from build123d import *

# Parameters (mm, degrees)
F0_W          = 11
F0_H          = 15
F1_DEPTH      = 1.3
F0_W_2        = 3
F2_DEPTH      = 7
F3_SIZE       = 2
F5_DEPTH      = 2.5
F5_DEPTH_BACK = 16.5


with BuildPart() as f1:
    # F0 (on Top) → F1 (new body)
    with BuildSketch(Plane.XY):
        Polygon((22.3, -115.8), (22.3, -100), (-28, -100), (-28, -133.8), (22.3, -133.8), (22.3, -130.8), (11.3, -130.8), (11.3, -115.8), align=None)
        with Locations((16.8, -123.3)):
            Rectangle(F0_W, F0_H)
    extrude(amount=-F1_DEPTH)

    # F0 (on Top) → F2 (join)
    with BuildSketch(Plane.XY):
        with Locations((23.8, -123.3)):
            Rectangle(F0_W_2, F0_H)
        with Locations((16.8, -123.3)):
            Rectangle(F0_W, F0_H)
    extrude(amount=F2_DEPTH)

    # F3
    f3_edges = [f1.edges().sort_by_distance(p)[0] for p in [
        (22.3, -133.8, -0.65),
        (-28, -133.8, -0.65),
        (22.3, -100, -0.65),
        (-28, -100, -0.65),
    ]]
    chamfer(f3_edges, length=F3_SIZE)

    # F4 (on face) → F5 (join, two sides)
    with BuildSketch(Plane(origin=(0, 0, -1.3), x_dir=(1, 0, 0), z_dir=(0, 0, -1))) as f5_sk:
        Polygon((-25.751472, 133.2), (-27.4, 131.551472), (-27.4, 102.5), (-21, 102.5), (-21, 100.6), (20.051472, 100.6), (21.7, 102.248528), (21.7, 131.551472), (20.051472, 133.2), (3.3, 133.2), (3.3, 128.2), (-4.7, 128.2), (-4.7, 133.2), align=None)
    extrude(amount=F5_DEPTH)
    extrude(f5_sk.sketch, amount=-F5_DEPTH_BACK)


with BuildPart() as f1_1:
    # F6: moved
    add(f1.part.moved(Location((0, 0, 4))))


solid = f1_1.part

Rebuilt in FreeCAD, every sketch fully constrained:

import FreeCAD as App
import Part
import Sketcher
Q = App.Units.Quantity


def edges_at(feature, points):
    """Names of the edges that pass closest to the given points."""
    edges = feature.Shape.Edges
    near = lambda p: min(range(len(edges)), key=lambda i: edges[i].distToShape(Part.Vertex(*p))[0])
    return sorted({f"Edge{near(p) + 1}" for p in points})

doc = App.newDocument("Part")
body = doc.addObject("PartDesign::Body", "Body")

sketch1 = body.newObject("Sketcher::SketchObject", "Sketch")
sketch1.AttachmentSupport = (doc.getObject("XY_Plane"), [""])
sketch1.MapMode = "FlatFace"
sketch1.addGeometry([
    Part.LineSegment(App.Vector(22.3, -100, 0), App.Vector(-28, -100, 0)),
    Part.LineSegment(App.Vector(-28, -100, 0), App.Vector(-28, -133.8, 0)),
    Part.LineSegment(App.Vector(-28, -133.8, 0), App.Vector(22.3, -133.8, 0)),
    Part.LineSegment(App.Vector(22.3, -133.8, 0), App.Vector(22.3, -100, 0)),
], False)
sketch1.addConstraint([
    Sketcher.Constraint("Coincident", 0, 2, 1, 1),
    Sketcher.Constraint("Coincident", 1, 2, 2, 1),
    Sketcher.Constraint("Coincident", 2, 2, 3, 1),
    Sketcher.Constraint("Coincident", 3, 2, 0, 1),
    Sketcher.Constraint("Horizontal", 0),
    Sketcher.Constraint("Vertical", 1),
    Sketcher.Constraint("Horizontal", 2),
    Sketcher.Constraint("Vertical", 3),
    Sketcher.Constraint("DistanceX", 0, 2, 0, 1, Q("50.3 mm")),
    Sketcher.Constraint("DistanceY", 1, 2, 1, 1, Q("33.8 mm")),
    Sketcher.Constraint("DistanceX", 0, 2, -1, 1, Q("28 mm")),
    Sketcher.Constraint("DistanceY", 0, 2, -1, 1, Q("100 mm")),
])
pad1 = body.newObject("PartDesign::Pad", "Pad")
pad1.Profile = sketch1
pad1.Length = 1.3
pad1.Reversed = True

sketch2 = body.newObject("Sketcher::SketchObject", "Sketch001")
sketch2.AttachmentSupport = (doc.getObject("XY_Plane"), [""])
sketch2.MapMode = "FlatFace"
sketch2.addGeometry([
    Part.LineSegment(App.Vector(25.3, -130.8, 0), App.Vector(25.3, -115.8, 0)),
    Part.LineSegment(App.Vector(25.3, -115.8, 0), App.Vector(11.3, -115.8, 0)),
    Part.LineSegment(App.Vector(11.3, -115.8, 0), App.Vector(11.3, -130.8, 0)),
    Part.LineSegment(App.Vector(11.3, -130.8, 0), App.Vector(25.3, -130.8, 0)),
], False)
sketch2.addConstraint([
    Sketcher.Constraint("Coincident", 0, 2, 1, 1),
    Sketcher.Constraint("Coincident", 1, 2, 2, 1),
    Sketcher.Constraint("Coincident", 2, 2, 3, 1),
    Sketcher.Constraint("Coincident", 3, 2, 0, 1),
    Sketcher.Constraint("Vertical", 0),
    Sketcher.Constraint("Horizontal", 1),
    Sketcher.Constraint("Vertical", 2),
    Sketcher.Constraint("Horizontal", 3),
    Sketcher.Constraint("DistanceX", 1, 2, 1, 1, Q("14 mm")),
    Sketcher.Constraint("DistanceY", 0, 1, 0, 2, Q("15 mm")),
    Sketcher.Constraint("DistanceX", -1, 1, 0, 2, Q("25.3 mm")),
    Sketcher.Constraint("DistanceY", 0, 2, -1, 1, Q("115.8 mm")),
])
pad2 = body.newObject("PartDesign::Pad", "Pad001")
pad2.Profile = sketch2
pad2.Length = 7
doc.recompute()

chamfer = body.newObject("PartDesign::Chamfer", "Chamfer")
chamfer.Base = (pad2, edges_at(pad2, [
    (22.3, -133.8, -0.65),
    (-28, -133.8, -0.65),
    (22.3, -100, -0.65),
    (-28, -100, -0.65),
]))
chamfer.Size = 2

sketch3 = body.newObject("Sketcher::SketchObject", "Sketch002")
sketch3.AttachmentSupport = (doc.getObject("XY_Plane"), [""])
sketch3.MapMode = "FlatFace"
sketch3.AttachmentOffset = App.Placement(App.Vector(0, 0, -1.3), App.Rotation())
sketch3.addGeometry([
    Part.LineSegment(App.Vector(-25.751472, -133.2, 0), App.Vector(-27.4, -131.551472, 0)),
    Part.LineSegment(App.Vector(-27.4, -131.551472, 0), App.Vector(-27.4, -102.5, 0)),
    Part.LineSegment(App.Vector(-27.4, -102.5, 0), App.Vector(-21, -102.5, 0)),
    Part.LineSegment(App.Vector(-21, -102.5, 0), App.Vector(-21, -100.6, 0)),
    Part.LineSegment(App.Vector(-21, -100.6, 0), App.Vector(20.051472, -100.6, 0)),
    Part.LineSegment(App.Vector(20.051472, -100.6, 0), App.Vector(21.7, -102.248528, 0)),
    Part.LineSegment(App.Vector(21.7, -102.248528, 0), App.Vector(21.7, -131.551472, 0)),
    Part.LineSegment(App.Vector(21.7, -131.551472, 0), App.Vector(20.051472, -133.2, 0)),
    Part.LineSegment(App.Vector(20.051472, -133.2, 0), App.Vector(3.3, -133.2, 0)),
    Part.LineSegment(App.Vector(3.3, -133.2, 0), App.Vector(3.3, -128.2, 0)),
    Part.LineSegment(App.Vector(3.3, -128.2, 0), App.Vector(-4.7, -128.2, 0)),
    Part.LineSegment(App.Vector(-4.7, -128.2, 0), App.Vector(-4.7, -133.2, 0)),
    Part.LineSegment(App.Vector(-4.7, -133.2, 0), App.Vector(-25.751472, -133.2, 0)),
], False)
sketch3.addConstraint([
    Sketcher.Constraint("Coincident", 0, 2, 1, 1),
    Sketcher.Constraint("Coincident", 1, 2, 2, 1),
    Sketcher.Constraint("Coincident", 2, 2, 3, 1),
    Sketcher.Constraint("Coincident", 3, 2, 4, 1),
    Sketcher.Constraint("Coincident", 4, 2, 5, 1),
    Sketcher.Constraint("Coincident", 5, 2, 6, 1),
    Sketcher.Constraint("Coincident", 6, 2, 7, 1),
    Sketcher.Constraint("Coincident", 7, 2, 8, 1),
    Sketcher.Constraint("Coincident", 8, 2, 9, 1),
    Sketcher.Constraint("Coincident", 9, 2, 10, 1),
    Sketcher.Constraint("Coincident", 10, 2, 11, 1),
    Sketcher.Constraint("Coincident", 11, 2, 12, 1),
    Sketcher.Constraint("Coincident", 12, 2, 0, 1),
    Sketcher.Constraint("Vertical", 1),
    Sketcher.Constraint("Horizontal", 2),
    Sketcher.Constraint("Vertical", 3),
    Sketcher.Constraint("Horizontal", 4),
    Sketcher.Constraint("Vertical", 6),
    Sketcher.Constraint("Horizontal", 8),
    Sketcher.Constraint("Vertical", 9),
    Sketcher.Constraint("Horizontal", 10),
    Sketcher.Constraint("Vertical", 11),
    Sketcher.Constraint("Horizontal", 12),
    Sketcher.Constraint("Parallel", 0, 5),
    Sketcher.Constraint("Perpendicular", 5, 7),
    Sketcher.Constraint("Horizontal", 0, 2, 6, 2),
    Sketcher.Constraint("Horizontal", 8, 2, 11, 2),
    Sketcher.Constraint("Vertical", 4, 2, 7, 2),
    Sketcher.Constraint("Equal", 0, 5),
    Sketcher.Constraint("DistanceX", 10, 2, 10, 1, Q("8 mm")),
    Sketcher.Constraint("DistanceY", 9, 1, 9, 2, Q("5 mm")),
    Sketcher.Constraint("DistanceX", 2, 1, 2, 2, Q("6.4 mm")),
    Sketcher.Constraint("DistanceY", 3, 1, 3, 2, Q("1.9 mm")),
    Sketcher.Constraint("DistanceX", 2, 2, -1, 1, Q("21 mm")),
    Sketcher.Constraint("DistanceY", 1, 2, -1, 1, Q("102.5 mm")),
    Sketcher.Constraint("DistanceX", -1, 1, 5, 2, Q("21.7 mm")),
    Sketcher.Constraint("DistanceY", 7, 2, -1, 1, Q("133.2 mm")),
    Sketcher.Constraint("DistanceX", -1, 1, 8, 2, Q("3.3 mm")),
    Sketcher.Constraint("DistanceX", 8, 2, 8, 1, Q("16.751472 mm")),
])
pad3 = body.newObject("PartDesign::Pad", "Pad002")
pad3.Profile = sketch3
pad3.Type = "TwoLengths"
pad3.Length = 2.5
pad3.Length2 = 16.5
pad3.Reversed = True
body2 = doc.addObject("PartDesign::Body", "Body001")
doc.recompute()

body.Placement = App.Placement(App.Vector(0, 0, 4), App.Rotation(App.Vector(0, 0, 1), 0))
boolean = body2.newObject("PartDesign::Boolean", "Boolean")
boolean.Type = "Fuse"
boolean.addObjects([body])

doc.recompute()
